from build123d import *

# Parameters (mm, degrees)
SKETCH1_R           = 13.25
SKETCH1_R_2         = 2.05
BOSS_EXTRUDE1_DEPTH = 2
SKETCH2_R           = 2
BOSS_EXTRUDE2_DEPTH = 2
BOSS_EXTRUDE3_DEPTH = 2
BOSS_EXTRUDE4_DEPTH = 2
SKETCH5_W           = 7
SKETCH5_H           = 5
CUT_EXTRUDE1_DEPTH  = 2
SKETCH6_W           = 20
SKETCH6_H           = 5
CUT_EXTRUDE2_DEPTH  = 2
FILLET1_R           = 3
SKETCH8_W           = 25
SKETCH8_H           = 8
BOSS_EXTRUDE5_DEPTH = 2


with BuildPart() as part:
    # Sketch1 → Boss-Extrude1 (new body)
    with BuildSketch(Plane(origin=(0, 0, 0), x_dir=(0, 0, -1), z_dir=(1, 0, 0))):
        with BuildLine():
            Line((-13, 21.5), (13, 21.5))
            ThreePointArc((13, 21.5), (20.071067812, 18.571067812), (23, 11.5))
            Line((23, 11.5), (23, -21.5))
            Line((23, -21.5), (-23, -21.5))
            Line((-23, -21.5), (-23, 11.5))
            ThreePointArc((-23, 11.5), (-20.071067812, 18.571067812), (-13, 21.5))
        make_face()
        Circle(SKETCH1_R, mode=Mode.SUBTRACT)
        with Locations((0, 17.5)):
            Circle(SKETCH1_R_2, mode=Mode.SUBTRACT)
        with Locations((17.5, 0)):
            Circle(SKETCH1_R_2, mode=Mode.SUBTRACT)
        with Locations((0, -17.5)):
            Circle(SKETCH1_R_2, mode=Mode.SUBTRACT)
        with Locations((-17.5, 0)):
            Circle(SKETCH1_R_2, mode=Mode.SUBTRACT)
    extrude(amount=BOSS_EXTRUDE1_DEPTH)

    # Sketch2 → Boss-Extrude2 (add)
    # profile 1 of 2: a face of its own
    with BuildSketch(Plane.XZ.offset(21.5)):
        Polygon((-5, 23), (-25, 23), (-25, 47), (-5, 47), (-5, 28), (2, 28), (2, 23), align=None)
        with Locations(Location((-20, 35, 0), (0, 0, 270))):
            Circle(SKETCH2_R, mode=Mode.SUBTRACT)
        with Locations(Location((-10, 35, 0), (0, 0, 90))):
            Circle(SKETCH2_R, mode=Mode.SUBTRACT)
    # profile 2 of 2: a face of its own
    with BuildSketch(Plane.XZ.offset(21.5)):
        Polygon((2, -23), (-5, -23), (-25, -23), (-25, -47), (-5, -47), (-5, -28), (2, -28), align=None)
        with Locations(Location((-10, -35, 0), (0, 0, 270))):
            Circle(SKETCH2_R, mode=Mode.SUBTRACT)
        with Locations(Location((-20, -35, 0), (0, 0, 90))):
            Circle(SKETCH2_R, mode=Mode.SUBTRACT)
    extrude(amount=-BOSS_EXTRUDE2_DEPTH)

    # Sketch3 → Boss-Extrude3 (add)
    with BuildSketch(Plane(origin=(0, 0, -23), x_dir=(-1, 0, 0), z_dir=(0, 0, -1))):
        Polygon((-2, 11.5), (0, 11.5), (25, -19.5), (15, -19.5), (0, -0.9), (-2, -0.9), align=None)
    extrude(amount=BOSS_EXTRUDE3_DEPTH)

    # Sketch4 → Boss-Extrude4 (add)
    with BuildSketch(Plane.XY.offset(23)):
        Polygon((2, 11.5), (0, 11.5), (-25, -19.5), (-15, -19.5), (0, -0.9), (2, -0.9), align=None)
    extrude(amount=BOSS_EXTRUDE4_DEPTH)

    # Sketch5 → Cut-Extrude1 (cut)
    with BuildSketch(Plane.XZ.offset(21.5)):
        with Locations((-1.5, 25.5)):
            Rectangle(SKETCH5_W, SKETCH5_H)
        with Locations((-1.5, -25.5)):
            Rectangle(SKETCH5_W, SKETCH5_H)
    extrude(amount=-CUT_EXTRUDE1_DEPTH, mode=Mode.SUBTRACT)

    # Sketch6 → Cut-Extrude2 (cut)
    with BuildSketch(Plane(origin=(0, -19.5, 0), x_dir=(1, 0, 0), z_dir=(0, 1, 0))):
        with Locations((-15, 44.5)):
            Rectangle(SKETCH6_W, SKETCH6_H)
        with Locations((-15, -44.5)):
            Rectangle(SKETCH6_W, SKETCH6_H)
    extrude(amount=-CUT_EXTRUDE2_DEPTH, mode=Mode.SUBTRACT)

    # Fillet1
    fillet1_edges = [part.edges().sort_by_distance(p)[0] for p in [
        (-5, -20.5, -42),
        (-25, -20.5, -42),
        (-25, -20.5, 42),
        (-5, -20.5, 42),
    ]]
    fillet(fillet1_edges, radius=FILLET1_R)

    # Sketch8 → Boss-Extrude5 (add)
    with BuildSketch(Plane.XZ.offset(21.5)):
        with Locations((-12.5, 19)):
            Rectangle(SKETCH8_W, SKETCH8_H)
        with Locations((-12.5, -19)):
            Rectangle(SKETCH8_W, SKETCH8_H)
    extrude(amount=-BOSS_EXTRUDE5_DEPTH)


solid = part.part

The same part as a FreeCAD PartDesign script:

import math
import FreeCAD as App
import Part
import Sketcher
from FreeCAD import Vector
Q = App.Units.Quantity


def edges_at(feature, points):
    """Names of the edges that pass closest to the given points."""
    edges = feature.Shape.Edges
    near = lambda p: min(range(len(edges)), key=lambda i: edges[i].distToShape(Part.Vertex(*p))[0])
    return sorted({f"Edge{near(p) + 1}" for p in points})


def add_polygon(sketch, points):
    """Adds a closed chain of lines whose ends are joined by coincident constraints."""
    first, n = sketch.GeometryCount, len(points)
    for a, b in zip(points, points[1:] + points[:1]):
        sketch.addGeometry(Part.LineSegment(App.Vector(*a, 0), App.Vector(*b, 0)), False)
    for i in range(n):
        sketch.addConstraint(Sketcher.Constraint("Coincident", first + i, 2, first + (i + 1) % n, 1))

doc = App.newDocument("Part")
body = doc.addObject("PartDesign::Body", "Body")

# Sketch on YZ plane
sketch1 = body.newObject("Sketcher::SketchObject", "Sketch")
sketch1.AttachmentSupport = (doc.getObject("YZ_Plane"), [""])
sketch1.MapMode = "FlatFace"
sketch1.addGeometry(Part.LineSegment(Vector(21.5, -13, 0), Vector(21.5, 13, 0)), False)
sketch1.addGeometry(Part.ArcOfCircle(Part.Circle(Vector(11.5, 13, 0), Vector(0, 0, 1), 10), math.radians(0), math.radians(90)), False)
sketch1.addGeometry(Part.LineSegment(Vector(11.5, 23, 0), Vector(-21.5, 23, 0)), False)
sketch1.addGeometry(Part.LineSegment(Vector(-21.5, 23, 0), Vector(-21.5, -23, 0)), False)
sketch1.addGeometry(Part.LineSegment(Vector(-21.5, -23, 0), Vector(11.5, -23, 0)), False)
sketch1.addGeometry(Part.ArcOfCircle(Part.Circle(Vector(11.5, -13, 0), Vector(0, 0, 1), 10), math.radians(-90), math.radians(0)), False)
sketch1.addGeometry(Part.Circle(Vector(-17.5, 0, 0), Vector(0, 0, 1), 2), False)
sketch1.addGeometry(Part.Circle(Vector(0, -17.5, 0), Vector(0, 0, 1), 2), False)
sketch1.addGeometry(Part.Circle(Vector(0, 0, 0), Vector(0, 0, 1), 13.2), False)
sketch1.addGeometry(Part.Circle(Vector(0, 17.5, 0), Vector(0, 0, 1), 2), False)
sketch1.addGeometry(Part.Circle(Vector(17.5, 0, 0), Vector(0, 0, 1), 2), False)
sketch1.addConstraint(Sketcher.Constraint("Tangent", 0, 2, 1, 1))
sketch1.addConstraint(Sketcher.Constraint("Tangent", 1, 2, 2, 1))
sketch1.addConstraint(Sketcher.Constraint("Coincident", 2, 2, 3, 1))
sketch1.addConstraint(Sketcher.Constraint("Coincident", 3, 2, 4, 1))
sketch1.addConstraint(Sketcher.Constraint("Tangent", 4, 2, 5, 1))
sketch1.addConstraint(Sketcher.Constraint("Tangent", 5, 2, 0, 1))
sketch1.addConstraint(Sketcher.Constraint("Vertical", 0))
sketch1.addConstraint(Sketcher.Constraint("Horizontal", 2))
sketch1.addConstraint(Sketcher.Constraint("Vertical", 3))
sketch1.addConstraint(Sketcher.Constraint("Horizontal", 4))
sketch1.addConstraint(Sketcher.Constraint("Coincident", 8, 3, -1, 1))
sketch1.addConstraint(Sketcher.Constraint("Equal", 1, 5))
sketch1.addConstraint(Sketcher.Constraint("Equal", 6, 7))
sketch1.addConstraint(Sketcher.Constraint("Equal", 7, 9))
sketch1.addConstraint(Sketcher.Constraint("Equal", 9, 10))
sketch1.addConstraint(Sketcher.Constraint("Symmetric", 7, 3, 9, 3, -1, 1))
sketch1.addConstraint(Sketcher.Constraint("Symmetric", 6, 3, 10, 3, -1, 1))
sketch1.addConstraint(Sketcher.Constraint("PointOnObject", 6, 3, -1))
sketch1.addConstraint(Sketcher.Constraint("PointOnObject", 7, 3, -2))
sketch1.addConstraint(Sketcher.Constraint("Radius", 1, Q("10 mm")))
sketch1.addConstraint(Sketcher.Constraint("Diameter", 6, Q("4.1 mm")))
sketch1.addConstraint(Sketcher.Constraint("Diameter", 8, Q("26.5 mm")))
sketch1.addConstraint(Sketcher.Constraint("DistanceX", 2, 2, 2, 1, Q("33 mm")))
sketch1.addConstraint(Sketcher.Constraint("DistanceY", 0, 1, 0, 2, Q("26 mm")))
sketch1.addConstraint(Sketcher.Constraint("DistanceY", -1, 1, 1, 3, Q("13 mm")))
sketch1.addConstraint(Sketcher.Constraint("DistanceX", 6, 3, 1, 3, Q("29 mm")))
sketch1.addConstraint(Sketcher.Constraint("DistanceY", 7, 3, 9, 3, Q("35 mm")))
sketch1.addConstraint(Sketcher.Constraint("DistanceX", 1, 3, 10, 3, Q("6 mm")))
pad1 = body.newObject("PartDesign::Pad", "Pad")
pad1.Profile = sketch1
pad1.Length = 2

# Sketch on XZ plane
sketch2 = body.newObject("Sketcher::SketchObject", "Sketch001")
sketch2.AttachmentSupport = (doc.getObject("XZ_Plane"), [""])
sketch2.MapMode = "FlatFace"
sketch2.AttachmentOffset = App.Placement(Vector(0, 0, 21.5), App.Rotation())
add_polygon(sketch2, [(-25, 23), (2, 23), (2, 28), (-5, 28), (-5, 47), (-25, 47)])  # lines 0-5
sketch2.addGeometry(Part.Circle(Vector(-10, 35, 0), Vector(0, 0, 1), 2), False)  # 6
sketch2.addGeometry(Part.Circle(Vector(-20, 35, 0), Vector(0, 0, 1), 2), False)  # 7
add_polygon(sketch2, [(2, -23), (-25, -23), (-25, -47), (-5, -47), (-5, -28), (2, -28)])  # lines 8-13
sketch2.addGeometry(Part.Circle(Vector(-20, -35, 0), Vector(0, 0, 1), 2), False)  # 14
sketch2.addGeometry(Part.Circle(Vector(-10, -35, 0), Vector(0, 0, 1), 2), False)  # 15
sketch2.addConstraint(Sketcher.Constraint("Horizontal", 0))
sketch2.addConstraint(Sketcher.Constraint("Vertical", 1))
sketch2.addConstraint(Sketcher.Constraint("Horizontal", 2))
sketch2.addConstraint(Sketcher.Constraint("Vertical", 3))
sketch2.addConstraint(Sketcher.Constraint("Horizontal", 4))
sketch2.addConstraint(Sketcher.Constraint("Vertical", 5))
sketch2.addConstraint(Sketcher.Constraint("Horizontal", 8))
sketch2.addConstraint(Sketcher.Constraint("Vertical", 9))
sketch2.addConstraint(Sketcher.Constraint("Horizontal", 10))
sketch2.addConstraint(Sketcher.Constraint("Vertical", 11))
sketch2.addConstraint(Sketcher.Constraint("Horizontal", 12))
sketch2.addConstraint(Sketcher.Constraint("Vertical", 13))
sketch2.addConstraint(Sketcher.Constraint("Equal", 6, 7))
sketch2.addConstraint(Sketcher.Constraint("Equal", 7, 14))
sketch2.addConstraint(Sketcher.Constraint("Equal", 14, 15))
sketch2.addConstraint(Sketcher.Constraint("Symmetric", 7, 3, 14, 3, -1))
sketch2.addConstraint(Sketcher.Constraint("Symmetric", 6, 3, 15, 3, -1))
sketch2.addConstraint(Sketcher.Constraint("Symmetric", 5, 2, 8, 2, -1))
sketch2.addConstraint(Sketcher.Constraint("Symmetric", 3, 2, 10, 2, -1))
sketch2.addConstraint(Sketcher.Constraint("Symmetric", 1, 2, 12, 2, -1))
sketch2.addConstraint(Sketcher.Constraint("Horizontal", 6, 3, 7, 3))
sketch2.addConstraint(Sketcher.Constraint("Diameter", 6, Q("4 mm")))
sketch2.addConstraint(Sketcher.Constraint("DistanceX", 0, 1, 0, 2, Q("27 mm")))
sketch2.addConstraint(Sketcher.Constraint("DistanceX", 2, 2, 2, 1, Q("7 mm")))
sketch2.addConstraint(Sketcher.Constraint("DistanceY", 1, 1, 1, 2, Q("5 mm")))
sketch2.addConstraint(Sketcher.Constraint("DistanceY", 3, 1, 3, 2, Q("19 mm")))
sketch2.addConstraint(Sketcher.Constraint("DistanceX", 6, 3, -1, 1, Q("10 mm")))
sketch2.addConstraint(Sketcher.Constraint("DistanceY", -1, 1, 6, 3, Q("35 mm")))
sketch2.addConstraint(Sketcher.Constraint("DistanceX", 7, 3, -1, 1, Q("20 mm")))
sketch2.addConstraint(Sketcher.Constraint("DistanceX", -1, 1, 0, 2, Q("2 mm")))
sketch2.addConstraint(Sketcher.Constraint("DistanceY", -1, 1, 0, 2, Q("23 mm")))
pad2 = body.newObject("PartDesign::Pad", "Pad001")
pad2.Profile = sketch2
pad2.Length = 2
pad2.Reversed = True

# Sketch on XY plane
sketch3 = body.newObject("Sketcher::SketchObject", "Sketch002")
sketch3.AttachmentSupport = (doc.getObject("XY_Plane"), [""])
sketch3.MapMode = "FlatFace"
sketch3.AttachmentOffset = App.Placement(Vector(0, 0, -23), App.Rotation())
add_polygon(sketch3, [(0, 11.5), (2, 11.5), (2, -0.9), (0, -0.9), (-15, -19.5), (-25, -19.5)])  # lines 0-5
sketch3.addConstraint(Sketcher.Constraint("Horizontal", 0))
sketch3.addConstraint(Sketcher.Constraint("Vertical", 1))
sketch3.addConstraint(Sketcher.Constraint("Horizontal", 2))
sketch3.addConstraint(Sketcher.Constraint("Horizontal", 4))
sketch3.addConstraint(Sketcher.Constraint("PointOnObject", 2, 2, -2))
sketch3.addConstraint(Sketcher.Constraint("PointOnObject", 5, 2, -2))
sketch3.addConstraint(Sketcher.Constraint("Parallel", 3, 5))
sketch3.addConstraint(Sketcher.Constraint("DistanceX", 0, 1, 0, 2, Q("2 mm")))
sketch3.addConstraint(Sketcher.Constraint("DistanceX", 4, 2, 4, 1, Q("10 mm")))
sketch3.addConstraint(Sketcher.Constraint("DistanceY", 1, 2, 1, 1, Q("12.4 mm")))
sketch3.addConstraint(Sketcher.Constraint("DistanceX", 3, 2, -1, 1, Q("15 mm")))
sketch3.addConstraint(Sketcher.Constraint("DistanceY", -1, 1, 0, 2, Q("11.5 mm")))
pad3 = body.newObject("PartDesign::Pad", "Pad002")
pad3.Profile = sketch3
pad3.Length = 2
pad3.Reversed = True

# Sketch on XY plane
sketch4 = body.newObject("Sketcher::SketchObject", "Sketch003")
sketch4.AttachmentSupport = (doc.getObject("XY_Plane"), [""])
sketch4.MapMode = "FlatFace"
sketch4.AttachmentOffset = App.Placement(Vector(0, 0, 23), App.Rotation())
add_polygon(sketch4, [(2, 11.5), (0, 11.5), (-25, -19.5), (-15, -19.5), (0, -0.9), (2, -0.9)])  # lines 0-5
sketch4.addConstraint(Sketcher.Constraint("Horizontal", 0))
sketch4.addConstraint(Sketcher.Constraint("Horizontal", 2))
sketch4.addConstraint(Sketcher.Constraint("Horizontal", 4))
sketch4.addConstraint(Sketcher.Constraint("Vertical", 5))
sketch4.addConstraint(Sketcher.Constraint("PointOnObject", 0, 2, -2))
sketch4.addConstraint(Sketcher.Constraint("PointOnObject", 3, 2, -2))
sketch4.addConstraint(Sketcher.Constraint("Parallel", 1, 3))
sketch4.addConstraint(Sketcher.Constraint("DistanceX", 0, 2, 0, 1, Q("2 mm")))
sketch4.addConstraint(Sketcher.Constraint("DistanceX", 2, 1, 2, 2, Q("10 mm")))
sketch4.addConstraint(Sketcher.Constraint("DistanceY", 5, 1, 5, 2, Q("12.4 mm")))
sketch4.addConstraint(Sketcher.Constraint("DistanceX", 1, 2, -1, 1, Q("25 mm")))
sketch4.addConstraint(Sketcher.Constraint("DistanceY", -1, 1, 0, 2, Q("11.5 mm")))
pad4 = body.newObject("PartDesign::Pad", "Pad003")
pad4.Profile = sketch4
pad4.Length = 2

# Sketch on XZ plane
sketch5 = body.newObject("Sketcher::SketchObject", "Sketch004")
sketch5.AttachmentSupport = (doc.getObject("XZ_Plane"), [""])
sketch5.MapMode = "FlatFace"
sketch5.AttachmentOffset = App.Placement(Vector(0, 0, 21.5), App.Rotation())
add_polygon(sketch5, [(-5, 28), (-5, 23), (2, 23), (2, 28)])  # lines 0-3
add_polygon(sketch5, [(-5, -23), (-5, -28), (2, -28), (2, -23)])  # lines 4-7
sketch5.addConstraint(Sketcher.Constraint("Vertical", 0))
sketch5.addConstraint(Sketcher.Constraint("Horizontal", 1))
sketch5.addConstraint(Sketcher.Constraint("Vertical", 2))
sketch5.addConstraint(Sketcher.Constraint("Horizontal", 3))
sketch5.addConstraint(Sketcher.Constraint("Vertical", 4))
sketch5.addConstraint(Sketcher.Constraint("Horizontal", 5))
sketch5.addConstraint(Sketcher.Constraint("Vertical", 6))
sketch5.addConstraint(Sketcher.Constraint("Horizontal", 7))
sketch5.addConstraint(Sketcher.Constraint("Symmetric", 3, 2, 4, 2, -1))
sketch5.addConstraint(Sketcher.Constraint("Symmetric", 1, 2, 6, 2, -1))
sketch5.addConstraint(Sketcher.Constraint("DistanceX", 1, 1, 1, 2, Q("7 mm")))
sketch5.addConstraint(Sketcher.Constraint("DistanceY", 0, 2, 0, 1, Q("5 mm")))
sketch5.addConstraint(Sketcher.Constraint("DistanceX", 0, 2, -1, 1, Q("5 mm")))
sketch5.addConstraint(Sketcher.Constraint("DistanceY", -1, 1, 0, 2, Q("23 mm")))
pocket1 = body.newObject("PartDesign::Pocket", "Pocket")
pocket1.Profile = sketch5
pocket1.Length = 2

# Sketch on XZ plane
sketch6 = body.newObject("Sketcher::SketchObject", "Sketch005")
sketch6.AttachmentSupport = (doc.getObject("XZ_Plane"), [""])
sketch6.MapMode = "FlatFace"
sketch6.AttachmentOffset = App.Placement(Vector(0, 0, 19.5), App.Rotation())
add_polygon(sketch6, [(-25, -47), (-25, -42), (-5, -42), (-5, -47)])  # lines 0-3
add_polygon(sketch6, [(-25, 42), (-25, 47), (-5, 47), (-5, 42)])  # lines 4-7
sketch6.addConstraint(Sketcher.Constraint("Vertical", 0))
sketch6.addConstraint(Sketcher.Constraint("Horizontal", 1))
sketch6.addConstraint(Sketcher.Constraint("Vertical", 2))
sketch6.addConstraint(Sketcher.Constraint("Horizontal", 3))
sketch6.addConstraint(Sketcher.Constraint("Vertical", 4))
sketch6.addConstraint(Sketcher.Constraint("Horizontal", 5))
sketch6.addConstraint(Sketcher.Constraint("Vertical", 6))
sketch6.addConstraint(Sketcher.Constraint("Horizontal", 7))
sketch6.addConstraint(Sketcher.Constraint("Symmetric", 3, 2, 4, 2, -1))
sketch6.addConstraint(Sketcher.Constraint("Symmetric", 1, 2, 6, 2, -1))
sketch6.addConstraint(Sketcher.Constraint("DistanceX", 1, 1, 1, 2, Q("20 mm")))
sketch6.addConstraint(Sketcher.Constraint("DistanceY", 0, 1, 0, 2, Q("5 mm")))
sketch6.addConstraint(Sketcher.Constraint("DistanceX", 0, 2, -1, 1, Q("25 mm")))
sketch6.addConstraint(Sketcher.Constraint("DistanceY", 0, 2, -1, 1, Q("42 mm")))
pocket2 = body.newObject("PartDesign::Pocket", "Pocket001")
pocket2.Profile = sketch6
pocket2.Length = 2
pocket2.Reversed = True
doc.recompute()

fillet = body.newObject("PartDesign::Fillet", "Fillet")
fillet.Base = (pocket2, edges_at(pocket2, [
    (-5, -20.5, -42),
    (-25, -20.5, -42),
    (-25, -20.5, 42),
    (-5, -20.5, 42),
]))
fillet.Radius = 3

# Sketch on XZ plane
sketch7 = body.newObject("Sketcher::SketchObject", "Sketch006")
sketch7.AttachmentSupport = (doc.getObject("XZ_Plane"), [""])
sketch7.MapMode = "FlatFace"
sketch7.AttachmentOffset = App.Placement(Vector(0, 0, 21.5), App.Rotation())
add_polygon(sketch7, [(-25, 23), (-25, 15), (0, 15), (0, 23)])  # lines 0-3
add_polygon(sketch7, [(-25, -15), (-25, -23), (0, -23), (0, -15)])  # lines 4-7
sketch7.addConstraint(Sketcher.Constraint("Vertical", 0))
sketch7.addConstraint(Sketcher.Constraint("Horizontal", 1))
sketch7.addConstraint(Sketcher.Constraint("Vertical", 2))
sketch7.addConstraint(Sketcher.Constraint("Horizontal", 3))
sketch7.addConstraint(Sketcher.Constraint("Vertical", 4))
sketch7.addConstraint(Sketcher.Constraint("Horizontal", 5))
sketch7.addConstraint(Sketcher.Constraint("Vertical", 6))
sketch7.addConstraint(Sketcher.Constraint("Horizontal", 7))
sketch7.addConstraint(Sketcher.Constraint("Symmetric", 2, 2, 5, 2, -1, 1))
sketch7.addConstraint(Sketcher.Constraint("Symmetric", 1, 2, 6, 2, -1))
sketch7.addConstraint(Sketcher.Constraint("Vertical", 3, 2, 4, 2))
sketch7.addConstraint(Sketcher.Constraint("DistanceX", 1, 1, 1, 2, Q("25 mm")))
sketch7.addConstraint(Sketcher.Constraint("DistanceY", 0, 2, 0, 1, Q("8 mm")))
sketch7.addConstraint(Sketcher.Constraint("DistanceY", -1, 1, 0, 2, Q("15 mm")))
pad5 = body.newObject("PartDesign::Pad", "Pad004")
pad5.Profile = sketch7
pad5.Length = 2
pad5.Reversed = True

doc.recompute()
